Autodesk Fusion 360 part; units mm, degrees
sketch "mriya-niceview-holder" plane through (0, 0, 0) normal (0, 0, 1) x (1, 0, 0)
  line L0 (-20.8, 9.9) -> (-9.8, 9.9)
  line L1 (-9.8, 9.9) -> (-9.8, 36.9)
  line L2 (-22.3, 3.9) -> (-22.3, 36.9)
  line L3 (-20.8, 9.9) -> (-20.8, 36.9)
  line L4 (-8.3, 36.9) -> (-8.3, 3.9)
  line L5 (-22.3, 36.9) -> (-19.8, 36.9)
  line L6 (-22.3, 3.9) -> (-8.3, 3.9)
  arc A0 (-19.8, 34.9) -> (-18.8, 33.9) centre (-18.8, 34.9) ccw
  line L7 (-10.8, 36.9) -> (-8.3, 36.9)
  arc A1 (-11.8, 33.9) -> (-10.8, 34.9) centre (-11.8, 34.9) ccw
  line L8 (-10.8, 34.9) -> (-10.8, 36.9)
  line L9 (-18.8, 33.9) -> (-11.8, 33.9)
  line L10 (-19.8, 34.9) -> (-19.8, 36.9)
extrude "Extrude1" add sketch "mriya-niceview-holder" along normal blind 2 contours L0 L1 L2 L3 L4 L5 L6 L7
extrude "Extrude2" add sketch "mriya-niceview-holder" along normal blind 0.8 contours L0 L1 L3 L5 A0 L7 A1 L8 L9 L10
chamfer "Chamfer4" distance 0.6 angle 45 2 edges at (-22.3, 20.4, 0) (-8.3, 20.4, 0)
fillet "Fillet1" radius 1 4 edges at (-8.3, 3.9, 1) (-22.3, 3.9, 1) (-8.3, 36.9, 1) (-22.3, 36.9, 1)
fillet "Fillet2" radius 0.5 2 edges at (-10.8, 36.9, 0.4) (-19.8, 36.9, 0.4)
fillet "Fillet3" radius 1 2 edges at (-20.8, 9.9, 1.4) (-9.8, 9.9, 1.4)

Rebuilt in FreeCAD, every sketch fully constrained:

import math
import FreeCAD as App
import Part
import Sketcher
from FreeCAD import Vector


def edges_at(feature, points):
    """Names of the edges that pass closest to the given points."""
    edges = feature.Shape.Edges
    near = lambda p: min(range(len(edges)), key=lambda i: edges[i].distToShape(Part.Vertex(*p))[0])
    return sorted({f"Edge{near(p) + 1}" for p in points})


def add_polygon(sketch, points):
    """Adds a closed chain of lines whose ends are joined by coincident constraints."""
    first, n = sketch.GeometryCount, len(points)
    for a, b in zip(points, points[1:] + points[:1]):
        sketch.addGeometry(Part.LineSegment(App.Vector(*a, 0), App.Vector(*b, 0)), False)
    for i in range(n):
        sketch.addConstraint(Sketcher.Constraint("Coincident", first + i, 2, first + (i + 1) % n, 1))

doc = App.newDocument("Part")
body = doc.addObject("PartDesign::Body", "Body")

sketch1 = doc.addObject("Sketcher::SketchObject", "Sketch")
body.addObject(sketch1)
sketch1.AttachmentSupport = (doc.XY_Plane, [""])
sketch1.MapMode = "FlatFace"
add_polygon(sketch1, [(-9.8, 9.9), (-20.8, 9.9), (-20.8, 36.9), (-22.3, 36.9), (-22.3, 3.9), (-8.3, 3.9), (-8.3, 36.9), (-9.8, 36.9)])
sketch1.addConstraint([
    Sketcher.Constraint("Horizontal", 0),
    Sketcher.Constraint("Vertical", 1),
    Sketcher.Constraint("Horizontal", 2),
    Sketcher.Constraint("Vertical", 3),
    Sketcher.Constraint("Horizontal", 4),
    Sketcher.Constraint("Vertical", 5),
    Sketcher.Constraint("Horizontal", 6),
    Sketcher.Constraint("Vertical", 7),
    Sketcher.Constraint("Horizontal", 2, 2, 5, 2),
    Sketcher.Constraint("Equal", 2, 6),
    Sketcher.Constraint("DistanceX", 0, 2, 0, 1, 11.0),
    Sketcher.Constraint("DistanceX", 4, 1, 4, 2, 14.0),
    Sketcher.Constraint("DistanceY", 1, 1, 1, 2, 27.0),
    Sketcher.Constraint("DistanceY", 3, 2, 3, 1, 33.0),
    Sketcher.Constraint("DistanceX", 0, 2, -1, 1, 20.8),
    Sketcher.Constraint("DistanceY", -1, 1, 0, 2, 9.9),
])
pad1 = doc.addObject("PartDesign::Pad", "Pad")
body.addObject(pad1)
pad1.Profile = sketch1
pad1.Length = 2

sketch2 = doc.addObject("Sketcher::SketchObject", "Sketch001")
body.addObject(sketch2)
sketch2.AttachmentSupport = (doc.XY_Plane, [""])
sketch2.MapMode = "FlatFace"
sketch2.addGeometry([
    Part.LineSegment(Vector(-20.8, 36.9, 0), Vector(-20.8, 9.9, 0)),
    Part.LineSegment(Vector(-20.8, 9.9, 0), Vector(-9.8, 9.9, 0)),
    Part.LineSegment(Vector(-9.8, 9.9, 0), Vector(-9.8, 36.9, 0)),
    Part.LineSegment(Vector(-9.8, 36.9, 0), Vector(-10.8, 36.9, 0)),
    Part.LineSegment(Vector(-10.8, 36.9, 0), Vector(-10.8, 34.9, 0)),
    Part.ArcOfCircle(Part.Circle(Vector(-11.8, 34.9, 0), Vector(0, 0, 1), 1), math.radians(-90), math.radians(0)),
    Part.LineSegment(Vector(-11.8, 33.9, 0), Vector(-18.8, 33.9, 0)),
    Part.ArcOfCircle(Part.Circle(Vector(-18.8, 34.9, 0), Vector(0, 0, 1), 1), math.radians(180), math.radians(270)),
    Part.LineSegment(Vector(-19.8, 34.9, 0), Vector(-19.8, 36.9, 0)),
    Part.LineSegment(Vector(-19.8, 36.9, 0), Vector(-20.8, 36.9, 0)),
], False)
sketch2.addConstraint([
    Sketcher.Constraint("Coincident", 0, 2, 1, 1),
    Sketcher.Constraint("Coincident", 1, 2, 2, 1),
    Sketcher.Constraint("Coincident", 2, 2, 3, 1),
    Sketcher.Constraint("Coincident", 3, 2, 4, 1),
    Sketcher.Constraint("Tangent", 4, 2, 5, 2),
    Sketcher.Constraint("Tangent", 5, 1, 6, 1),
    Sketcher.Constraint("Tangent", 6, 2, 7, 2),
    Sketcher.Constraint("Tangent", 7, 1, 8, 1),
    Sketcher.Constraint("Coincident", 8, 2, 9, 1),
    Sketcher.Constraint("Coincident", 9, 2, 0, 1),
    Sketcher.Constraint("Vertical", 0),
    Sketcher.Constraint("Horizontal", 1),
    Sketcher.Constraint("Vertical", 2),
    Sketcher.Constraint("Horizontal", 3),
    Sketcher.Constraint("Vertical", 4),
    Sketcher.Constraint("Horizontal", 6),
    Sketcher.Constraint("Vertical", 8),
    Sketcher.Constraint("Horizontal", 9),
    Sketcher.Constraint("Equal", 5, 7),
    Sketcher.Constraint("Horizontal", 3, 2, 8, 2),
    Sketcher.Constraint("Equal", 3, 9),
    Sketcher.Constraint("Radius", 5, 1.0),
    Sketcher.Constraint("DistanceX", 1, 1, 1, 2, 11.0),
    Sketcher.Constraint("DistanceX", 3, 2, 3, 1, 1.0),
    Sketcher.Constraint("DistanceY", 0, 2, 0, 1, 27.0),
    Sketcher.Constraint("DistanceY", 4, 2, 4, 1, 2.0),
    Sketcher.Constraint("DistanceX", 5, 3, -1, 1, 11.8),
    Sketcher.Constraint("DistanceY", -1, 1, 5, 3, 34.9),
])
pad2 = doc.addObject("PartDesign::Pad", "Pad001")
body.addObject(pad2)
pad2.Profile = sketch2
pad2.Length = 0.8
doc.recompute()

chamfer = doc.addObject("PartDesign::Chamfer", "Chamfer")
body.addObject(chamfer)
chamfer.Base = (pad2, edges_at(pad2, [(-22.3, 20.4, 0), (-8.3, 20.4, 0)]))
chamfer.Size = 0.6
doc.recompute()

fillet = doc.addObject("PartDesign::Fillet", "Fillet")
body.addObject(fillet)
fillet.Base = (chamfer, edges_at(chamfer, [
    (-8.3, 3.9, 1),
    (-22.3, 3.9, 1),
    (-8.3, 36.9, 1),
    (-22.3, 36.9, 1),
]))
fillet.Radius = 1
doc.recompute()

fillet2 = doc.addObject("PartDesign::Fillet", "Fillet001")
body.addObject(fillet2)
fillet2.Base = (fillet, edges_at(fillet, [(-10.8, 36.9, 0.4), (-19.8, 36.9, 0.4)]))
fillet2.Radius = 0.5
doc.recompute()

fillet3 = doc.addObject("PartDesign::Fillet", "Fillet002")
body.addObject(fillet3)
fillet3.Base = (fillet2, edges_at(fillet2, [(-20.8, 9.9, 1.4), (-9.8, 9.9, 1.4)]))
fillet3.Radius = 1

doc.recompute()
